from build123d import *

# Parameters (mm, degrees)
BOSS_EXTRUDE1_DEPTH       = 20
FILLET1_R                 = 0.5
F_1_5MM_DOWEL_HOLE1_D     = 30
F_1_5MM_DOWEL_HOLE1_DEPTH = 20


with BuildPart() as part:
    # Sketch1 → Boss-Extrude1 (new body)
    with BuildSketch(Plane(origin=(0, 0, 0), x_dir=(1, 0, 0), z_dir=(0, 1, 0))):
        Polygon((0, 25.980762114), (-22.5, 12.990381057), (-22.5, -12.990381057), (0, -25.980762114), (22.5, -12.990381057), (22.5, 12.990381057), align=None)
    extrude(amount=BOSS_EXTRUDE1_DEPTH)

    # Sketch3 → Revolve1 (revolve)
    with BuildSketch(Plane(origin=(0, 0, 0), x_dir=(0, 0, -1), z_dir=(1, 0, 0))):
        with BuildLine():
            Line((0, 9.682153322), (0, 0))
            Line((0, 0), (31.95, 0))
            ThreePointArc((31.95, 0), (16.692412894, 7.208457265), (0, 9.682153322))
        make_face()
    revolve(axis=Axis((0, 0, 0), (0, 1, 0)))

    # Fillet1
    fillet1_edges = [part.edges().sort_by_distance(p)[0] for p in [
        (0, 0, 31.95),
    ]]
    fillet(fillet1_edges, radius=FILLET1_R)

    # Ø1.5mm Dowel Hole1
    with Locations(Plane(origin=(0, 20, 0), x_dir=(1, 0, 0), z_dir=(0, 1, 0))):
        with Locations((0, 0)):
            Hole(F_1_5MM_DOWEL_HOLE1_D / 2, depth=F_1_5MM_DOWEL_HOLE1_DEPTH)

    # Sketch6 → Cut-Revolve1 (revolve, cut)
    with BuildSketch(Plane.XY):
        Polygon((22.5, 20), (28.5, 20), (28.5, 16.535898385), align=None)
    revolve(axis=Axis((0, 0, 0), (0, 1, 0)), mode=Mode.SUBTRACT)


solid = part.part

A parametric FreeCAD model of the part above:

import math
import FreeCAD as App
import Part
import Sketcher

V = App.Vector
Q = App.Units.Quantity


def edges_at(feature, points):
    """Names of the edges that pass closest to the given points."""
    edges = feature.Shape.Edges
    near = lambda p: min(range(len(edges)), key=lambda i: edges[i].distToShape(Part.Vertex(*p))[0])
    return sorted({f"Edge{near(p) + 1}" for p in points})


def add_polygon(sketch, points):
    """Adds a closed chain of lines whose ends are joined by coincident constraints."""
    first, n = sketch.GeometryCount, len(points)
    for a, b in zip(points, points[1:] + points[:1]):
        sketch.addGeometry(Part.LineSegment(App.Vector(*a, 0), App.Vector(*b, 0)), False)
    for i in range(n):
        sketch.addConstraint(Sketcher.Constraint("Coincident", first + i, 2, first + (i + 1) % n, 1))

doc = App.newDocument("Part")
params = doc.addObject("Spreadsheet::Sheet", "Params")
for row, (alias, value) in enumerate([
    ("pad1_length", "20 mm"),
    ("sketch2_height", "31.95 mm"),
    ("revolution_angle", "360 deg"),
    ("fillet_radius", "0.5 mm"),
    ("sketch3_diameter", "30 mm"),
    ("hole_diameter", "30 mm"),
    ("hole_depth", "20 mm"),
    ("sketch4_width", "6 mm"),
    ("groove_angle", "360 deg"),
], start=1):
    params.set(f"A{row}", alias)
    params.set(f"B{row}", "=" + value)
    params.setAlias(f"B{row}", alias)

body = doc.addObject("PartDesign::Body", "Body")

# Sketch on XZ plane
sketch1 = doc.addObject("Sketcher::SketchObject", "Sketch")
body.addObject(sketch1)
sketch1.AttachmentSupport = (doc.XZ_Plane, [""])
sketch1.MapMode = "FlatFace"
add_polygon(sketch1, [(0, -25.980762), (-22.5, -12.990381), (-22.5, 12.990381), (0, 25.980762), (22.5, 12.990381), (22.5, -12.990381)])  # lines 0-5
sketch1.addConstraint(Sketcher.Constraint("Vertical", 1))
sketch1.addConstraint(Sketcher.Constraint("Vertical", 4))
sketch1.addConstraint(Sketcher.Constraint("Symmetric", 0, 2, 3, 2, -1, 1))
sketch1.addConstraint(Sketcher.Constraint("Symmetric", 2, 2, 5, 2, -1, 1))
sketch1.addConstraint(Sketcher.Constraint("PointOnObject", 2, 2, -2))
sketch1.addConstraint(Sketcher.Constraint("Parallel", 2, 5))
sketch1.addConstraint(Sketcher.Constraint("Horizontal", 1, 2, 3, 2))
sketch1.addConstraint(Sketcher.Constraint("Angle", 0, Q("150 deg")))
sketch1.addConstraint(Sketcher.Constraint("DistanceX", 1, 2, 3, 2, Q("45 mm")))
sketch1.addConstraint(Sketcher.Constraint("DistanceY", 1, 1, 1, 2, Q("25.980762 mm")))
pad1 = doc.addObject("PartDesign::Pad", "Pad")
body.addObject(pad1)
pad1.Profile = sketch1
pad1.setExpression("Length", "Params.pad1_length")
pad1.Reversed = True

# Sketch on YZ plane
sketch2 = doc.addObject("Sketcher::SketchObject", "Sketch001")
body.addObject(sketch2)
sketch2.AttachmentSupport = (doc.YZ_Plane, [""])
sketch2.MapMode = "FlatFace"
sketch2.addGeometry(Part.LineSegment(V(9.682153, 0, 0), V(0, 0, 0)), False)
sketch2.addGeometry(Part.LineSegment(V(0, 0, 0), V(0, -31.95, 0)), False)
sketch2.addGeometry(Part.ArcOfCircle(Part.Circle(V(-47.874599, 0, 0), V(0, 0, 1), 57.556752), math.radians(-33.717898), math.radians(0)), False)
sketch2.addConstraint(Sketcher.Constraint("Coincident", 0, 2, 1, 1))
sketch2.addConstraint(Sketcher.Constraint("Coincident", 1, 2, 2, 1))
sketch2.addConstraint(Sketcher.Constraint("Coincident", 2, 2, 0, 1))
sketch2.addConstraint(Sketcher.Constraint("Horizontal", 0))
sketch2.addConstraint(Sketcher.Constraint("Vertical", 1))
sketch2.addConstraint(Sketcher.Constraint("Coincident", 0, 2, -1, 1))
sketch2.addConstraint(Sketcher.Constraint("PointOnObject", 2, 3, -1))
sketch2.addConstraint(Sketcher.Constraint("DistanceY", 1, 2, 1, 1, Q("31.95 mm")))
sketch2.addConstraint(Sketcher.Constraint("Radius", 2, Q("57.556752 mm")))
sketch2.setExpression("Constraints[7]", "Params.sketch2_height")
revolution = doc.addObject("PartDesign::Revolution", "Revolution")
body.addObject(revolution)
revolution.Profile = sketch2
revolution.ReferenceAxis = (sketch2, ["H_Axis"])
revolution.setExpression("Angle", "Params.revolution_angle")
doc.recompute()

fillet = doc.addObject("PartDesign::Fillet", "Fillet")
body.addObject(fillet)
fillet.Base = (revolution, edges_at(revolution, [(0, 0, 31.95)]))
fillet.setExpression("Radius", "Params.fillet_radius")

# Sketch on XZ plane
sketch3 = doc.addObject("Sketcher::SketchObject", "Sketch002")
body.addObject(sketch3)
sketch3.AttachmentSupport = (doc.XZ_Plane, [""])
sketch3.MapMode = "FlatFace"
sketch3.AttachmentOffset = App.Placement(V(0, 0, -20), App.Rotation())
sketch3.addGeometry(Part.Circle(V(0, 0, 0), V(0, 0, 1), 15), False)
sketch3.addConstraint(Sketcher.Constraint("Coincident", 0, 3, -1, 1))
sketch3.addConstraint(Sketcher.Constraint("Diameter", 0, Q("30 mm")))
sketch3.setExpression("Constraints[1]", "Params.sketch3_diameter")
doc.recompute()
hole = doc.addObject("PartDesign::Hole", "Hole")
body.addObject(hole)
hole.Profile = sketch3
hole.ThreadType = "None"
hole.setExpression("Diameter", "Params.hole_diameter")
hole.DepthType = "Dimension"
hole.setExpression("Depth", "Params.hole_depth")
hole.DrillPoint = "Flat"
hole.Reversed = True

# Sketch on XY plane
sketch4 = doc.addObject("Sketcher::SketchObject", "Sketch003")
body.addObject(sketch4)
sketch4.AttachmentSupport = (doc.XY_Plane, [""])
sketch4.MapMode = "FlatFace"
add_polygon(sketch4, [(28.5, 20), (22.5, 20), (28.5, 16.535898)])  # lines 0-2
sketch4.addConstraint(Sketcher.Constraint("Horizontal", 0))
sketch4.addConstraint(Sketcher.Constraint("Vertical", 2))
sketch4.addConstraint(Sketcher.Constraint("DistanceX", 0, 2, 0, 1, Q("6 mm")))
sketch4.addConstraint(Sketcher.Constraint("Angle", 1, Q("-30 deg")))
sketch4.addConstraint(Sketcher.Constraint("DistanceY", -1, 1, 0, 2, Q("20 mm")))
sketch4.addConstraint(Sketcher.Constraint("DistanceX", -1, 1, 0, 2, Q("22.5 mm")))
sketch4.setExpression("Constraints[5]", "Params.sketch4_width")
groove = doc.addObject("PartDesign::Groove", "Groove")
body.addObject(groove)
groove.Profile = sketch4
groove.ReferenceAxis = (sketch4, ["V_Axis"])
groove.setExpression("Angle", "Params.groove_angle")

doc.recompute()
